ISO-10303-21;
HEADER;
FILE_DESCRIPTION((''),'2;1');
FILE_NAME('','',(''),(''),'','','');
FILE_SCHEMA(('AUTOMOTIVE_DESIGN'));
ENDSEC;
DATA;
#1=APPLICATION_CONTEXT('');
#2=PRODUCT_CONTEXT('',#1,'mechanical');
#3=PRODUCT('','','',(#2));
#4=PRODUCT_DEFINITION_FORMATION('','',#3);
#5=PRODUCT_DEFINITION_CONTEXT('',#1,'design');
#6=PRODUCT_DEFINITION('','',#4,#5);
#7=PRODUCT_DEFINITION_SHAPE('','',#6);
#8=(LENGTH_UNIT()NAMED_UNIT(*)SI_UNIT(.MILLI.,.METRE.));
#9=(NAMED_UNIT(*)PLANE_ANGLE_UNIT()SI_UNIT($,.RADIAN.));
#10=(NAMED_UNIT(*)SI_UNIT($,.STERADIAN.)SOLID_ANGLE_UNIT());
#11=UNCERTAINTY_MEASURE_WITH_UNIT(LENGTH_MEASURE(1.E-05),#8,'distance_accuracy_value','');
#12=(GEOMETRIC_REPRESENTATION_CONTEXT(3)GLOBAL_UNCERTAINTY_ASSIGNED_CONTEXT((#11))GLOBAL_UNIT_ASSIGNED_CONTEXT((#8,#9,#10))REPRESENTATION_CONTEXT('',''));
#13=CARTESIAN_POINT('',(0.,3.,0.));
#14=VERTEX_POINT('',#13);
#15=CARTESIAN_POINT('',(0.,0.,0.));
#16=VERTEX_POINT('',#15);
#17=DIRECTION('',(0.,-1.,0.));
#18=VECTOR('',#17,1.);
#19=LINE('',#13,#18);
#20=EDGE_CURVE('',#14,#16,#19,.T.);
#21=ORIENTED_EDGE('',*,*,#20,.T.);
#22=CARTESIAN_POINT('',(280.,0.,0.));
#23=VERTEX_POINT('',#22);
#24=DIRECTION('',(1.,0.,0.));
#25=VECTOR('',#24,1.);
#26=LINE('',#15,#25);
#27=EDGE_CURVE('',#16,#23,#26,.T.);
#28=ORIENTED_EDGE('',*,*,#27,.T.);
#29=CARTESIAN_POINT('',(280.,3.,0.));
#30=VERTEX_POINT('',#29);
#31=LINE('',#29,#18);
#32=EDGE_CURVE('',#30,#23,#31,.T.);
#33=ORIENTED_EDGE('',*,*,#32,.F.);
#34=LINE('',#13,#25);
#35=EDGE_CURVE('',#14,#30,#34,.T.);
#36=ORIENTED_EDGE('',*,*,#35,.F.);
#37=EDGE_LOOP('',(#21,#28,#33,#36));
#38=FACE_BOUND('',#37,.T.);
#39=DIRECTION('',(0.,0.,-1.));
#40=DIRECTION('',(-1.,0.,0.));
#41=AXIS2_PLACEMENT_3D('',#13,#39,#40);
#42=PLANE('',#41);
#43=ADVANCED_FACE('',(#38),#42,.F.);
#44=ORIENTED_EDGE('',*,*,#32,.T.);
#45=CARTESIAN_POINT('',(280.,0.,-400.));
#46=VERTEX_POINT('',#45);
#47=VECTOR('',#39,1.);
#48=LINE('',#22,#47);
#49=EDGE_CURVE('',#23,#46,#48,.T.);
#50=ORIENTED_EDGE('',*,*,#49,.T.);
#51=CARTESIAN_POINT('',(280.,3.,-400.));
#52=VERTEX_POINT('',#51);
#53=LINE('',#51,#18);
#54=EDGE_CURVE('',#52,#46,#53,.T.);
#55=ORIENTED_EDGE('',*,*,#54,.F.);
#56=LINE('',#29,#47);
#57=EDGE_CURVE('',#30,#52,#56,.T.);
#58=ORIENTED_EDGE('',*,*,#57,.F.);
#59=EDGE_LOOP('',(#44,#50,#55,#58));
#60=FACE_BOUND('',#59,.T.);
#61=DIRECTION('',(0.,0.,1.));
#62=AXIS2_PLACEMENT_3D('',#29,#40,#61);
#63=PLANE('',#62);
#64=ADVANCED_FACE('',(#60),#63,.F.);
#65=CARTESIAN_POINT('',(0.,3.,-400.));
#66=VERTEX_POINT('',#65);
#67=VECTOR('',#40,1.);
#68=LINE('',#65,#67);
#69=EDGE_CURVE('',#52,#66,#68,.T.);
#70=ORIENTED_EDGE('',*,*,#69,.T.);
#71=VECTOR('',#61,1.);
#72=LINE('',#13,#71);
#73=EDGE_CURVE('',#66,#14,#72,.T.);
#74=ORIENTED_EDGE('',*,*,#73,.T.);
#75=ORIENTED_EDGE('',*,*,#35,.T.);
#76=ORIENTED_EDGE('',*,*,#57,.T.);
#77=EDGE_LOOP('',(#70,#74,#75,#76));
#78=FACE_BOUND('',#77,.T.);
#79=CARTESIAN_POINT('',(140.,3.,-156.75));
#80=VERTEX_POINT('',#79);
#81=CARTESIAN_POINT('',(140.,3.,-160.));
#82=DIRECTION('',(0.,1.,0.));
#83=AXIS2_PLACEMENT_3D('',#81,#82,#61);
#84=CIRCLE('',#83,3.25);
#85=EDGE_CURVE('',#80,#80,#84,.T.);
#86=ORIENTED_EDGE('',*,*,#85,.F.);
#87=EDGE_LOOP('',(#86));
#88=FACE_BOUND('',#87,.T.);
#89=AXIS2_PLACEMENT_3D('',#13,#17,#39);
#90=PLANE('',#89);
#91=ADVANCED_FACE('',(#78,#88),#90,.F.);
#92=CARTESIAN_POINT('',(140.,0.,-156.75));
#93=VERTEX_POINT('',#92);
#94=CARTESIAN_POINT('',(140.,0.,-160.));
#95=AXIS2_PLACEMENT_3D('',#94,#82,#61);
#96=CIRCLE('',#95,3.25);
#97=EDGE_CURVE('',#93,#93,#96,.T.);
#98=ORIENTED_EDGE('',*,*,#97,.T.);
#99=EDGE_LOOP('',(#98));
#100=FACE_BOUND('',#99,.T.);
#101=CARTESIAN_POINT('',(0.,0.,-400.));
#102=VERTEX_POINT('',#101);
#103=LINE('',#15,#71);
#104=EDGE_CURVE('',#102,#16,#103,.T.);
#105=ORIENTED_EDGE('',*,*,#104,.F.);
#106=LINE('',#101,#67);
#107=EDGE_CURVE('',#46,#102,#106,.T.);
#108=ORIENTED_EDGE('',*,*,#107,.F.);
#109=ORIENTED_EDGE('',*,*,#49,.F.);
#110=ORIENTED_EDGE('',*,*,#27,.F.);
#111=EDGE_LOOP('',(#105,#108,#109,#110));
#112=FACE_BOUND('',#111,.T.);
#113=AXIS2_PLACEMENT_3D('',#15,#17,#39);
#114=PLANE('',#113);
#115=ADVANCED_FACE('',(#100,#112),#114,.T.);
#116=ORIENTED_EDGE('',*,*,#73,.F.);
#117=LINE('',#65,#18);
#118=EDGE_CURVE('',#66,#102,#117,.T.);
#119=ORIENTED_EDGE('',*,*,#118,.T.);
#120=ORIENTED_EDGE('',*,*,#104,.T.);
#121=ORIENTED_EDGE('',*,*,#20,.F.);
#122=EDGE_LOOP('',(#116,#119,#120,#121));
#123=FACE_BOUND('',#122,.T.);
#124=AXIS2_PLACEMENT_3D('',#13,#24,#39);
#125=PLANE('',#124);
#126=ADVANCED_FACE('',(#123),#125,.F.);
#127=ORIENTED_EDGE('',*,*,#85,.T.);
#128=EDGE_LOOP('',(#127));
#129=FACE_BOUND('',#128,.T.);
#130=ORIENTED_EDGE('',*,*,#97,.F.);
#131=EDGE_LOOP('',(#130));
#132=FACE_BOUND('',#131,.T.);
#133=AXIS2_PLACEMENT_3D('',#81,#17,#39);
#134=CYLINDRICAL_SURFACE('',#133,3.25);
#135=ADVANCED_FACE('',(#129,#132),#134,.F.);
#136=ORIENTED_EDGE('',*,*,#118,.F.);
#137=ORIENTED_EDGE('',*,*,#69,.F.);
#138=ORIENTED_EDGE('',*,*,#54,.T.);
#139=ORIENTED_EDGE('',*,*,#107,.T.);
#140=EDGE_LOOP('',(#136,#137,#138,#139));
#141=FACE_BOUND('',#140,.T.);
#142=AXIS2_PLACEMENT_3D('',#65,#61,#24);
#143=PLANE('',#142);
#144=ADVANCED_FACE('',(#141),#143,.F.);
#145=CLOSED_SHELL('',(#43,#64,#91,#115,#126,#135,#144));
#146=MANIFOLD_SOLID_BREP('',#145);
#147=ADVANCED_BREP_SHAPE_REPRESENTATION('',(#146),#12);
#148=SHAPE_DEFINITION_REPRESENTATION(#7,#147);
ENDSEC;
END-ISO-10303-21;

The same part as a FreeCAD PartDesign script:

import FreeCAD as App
import Part
import Sketcher

V = App.Vector


def add_polygon(sketch, points):
    """Adds a closed chain of lines whose ends are joined by coincident constraints."""
    first, n = sketch.GeometryCount, len(points)
    for a, b in zip(points, points[1:] + points[:1]):
        sketch.addGeometry(Part.LineSegment(App.Vector(*a, 0), App.Vector(*b, 0)), False)
    for i in range(n):
        sketch.addConstraint(Sketcher.Constraint("Coincident", first + i, 2, first + (i + 1) % n, 1))

doc = App.newDocument("Part")
body = doc.addObject("PartDesign::Body", "Body")

# Sketch on XZ plane
sketch1 = body.newObject("Sketcher::SketchObject", "Sketch")
sketch1.AttachmentSupport = (doc.getObject("XZ_Plane"), [""])
sketch1.MapMode = "FlatFace"
add_polygon(sketch1, [(0, -400), (0, 0), (280, 0), (280, -400)])  # lines 0-3
sketch1.addGeometry(Part.Circle(V(140, -160, 0), V(0, 0, 1), 3.2), False)  # 4
sketch1.addConstraint([
    Sketcher.Constraint("Vertical", 0),
    Sketcher.Constraint("Horizontal", 1),
    Sketcher.Constraint("Vertical", 2),
    Sketcher.Constraint("Horizontal", 3),
    Sketcher.Constraint("Coincident", 0, 2, -1, 1),
    Sketcher.Constraint("Diameter", 4, 6.5),
    Sketcher.Constraint("DistanceX", 1, 1, 1, 2, 280.0),
    Sketcher.Constraint("DistanceY", 0, 1, 0, 2, 400.0),
    Sketcher.Constraint("DistanceX", -1, 1, 4, 3, 140.0),
    Sketcher.Constraint("DistanceY", 4, 3, -1, 1, 160.0),
])
pad1 = body.newObject("PartDesign::Pad", "Pad")
pad1.Profile = sketch1
pad1.Length = 3
pad1.Reversed = True

doc.recompute()
